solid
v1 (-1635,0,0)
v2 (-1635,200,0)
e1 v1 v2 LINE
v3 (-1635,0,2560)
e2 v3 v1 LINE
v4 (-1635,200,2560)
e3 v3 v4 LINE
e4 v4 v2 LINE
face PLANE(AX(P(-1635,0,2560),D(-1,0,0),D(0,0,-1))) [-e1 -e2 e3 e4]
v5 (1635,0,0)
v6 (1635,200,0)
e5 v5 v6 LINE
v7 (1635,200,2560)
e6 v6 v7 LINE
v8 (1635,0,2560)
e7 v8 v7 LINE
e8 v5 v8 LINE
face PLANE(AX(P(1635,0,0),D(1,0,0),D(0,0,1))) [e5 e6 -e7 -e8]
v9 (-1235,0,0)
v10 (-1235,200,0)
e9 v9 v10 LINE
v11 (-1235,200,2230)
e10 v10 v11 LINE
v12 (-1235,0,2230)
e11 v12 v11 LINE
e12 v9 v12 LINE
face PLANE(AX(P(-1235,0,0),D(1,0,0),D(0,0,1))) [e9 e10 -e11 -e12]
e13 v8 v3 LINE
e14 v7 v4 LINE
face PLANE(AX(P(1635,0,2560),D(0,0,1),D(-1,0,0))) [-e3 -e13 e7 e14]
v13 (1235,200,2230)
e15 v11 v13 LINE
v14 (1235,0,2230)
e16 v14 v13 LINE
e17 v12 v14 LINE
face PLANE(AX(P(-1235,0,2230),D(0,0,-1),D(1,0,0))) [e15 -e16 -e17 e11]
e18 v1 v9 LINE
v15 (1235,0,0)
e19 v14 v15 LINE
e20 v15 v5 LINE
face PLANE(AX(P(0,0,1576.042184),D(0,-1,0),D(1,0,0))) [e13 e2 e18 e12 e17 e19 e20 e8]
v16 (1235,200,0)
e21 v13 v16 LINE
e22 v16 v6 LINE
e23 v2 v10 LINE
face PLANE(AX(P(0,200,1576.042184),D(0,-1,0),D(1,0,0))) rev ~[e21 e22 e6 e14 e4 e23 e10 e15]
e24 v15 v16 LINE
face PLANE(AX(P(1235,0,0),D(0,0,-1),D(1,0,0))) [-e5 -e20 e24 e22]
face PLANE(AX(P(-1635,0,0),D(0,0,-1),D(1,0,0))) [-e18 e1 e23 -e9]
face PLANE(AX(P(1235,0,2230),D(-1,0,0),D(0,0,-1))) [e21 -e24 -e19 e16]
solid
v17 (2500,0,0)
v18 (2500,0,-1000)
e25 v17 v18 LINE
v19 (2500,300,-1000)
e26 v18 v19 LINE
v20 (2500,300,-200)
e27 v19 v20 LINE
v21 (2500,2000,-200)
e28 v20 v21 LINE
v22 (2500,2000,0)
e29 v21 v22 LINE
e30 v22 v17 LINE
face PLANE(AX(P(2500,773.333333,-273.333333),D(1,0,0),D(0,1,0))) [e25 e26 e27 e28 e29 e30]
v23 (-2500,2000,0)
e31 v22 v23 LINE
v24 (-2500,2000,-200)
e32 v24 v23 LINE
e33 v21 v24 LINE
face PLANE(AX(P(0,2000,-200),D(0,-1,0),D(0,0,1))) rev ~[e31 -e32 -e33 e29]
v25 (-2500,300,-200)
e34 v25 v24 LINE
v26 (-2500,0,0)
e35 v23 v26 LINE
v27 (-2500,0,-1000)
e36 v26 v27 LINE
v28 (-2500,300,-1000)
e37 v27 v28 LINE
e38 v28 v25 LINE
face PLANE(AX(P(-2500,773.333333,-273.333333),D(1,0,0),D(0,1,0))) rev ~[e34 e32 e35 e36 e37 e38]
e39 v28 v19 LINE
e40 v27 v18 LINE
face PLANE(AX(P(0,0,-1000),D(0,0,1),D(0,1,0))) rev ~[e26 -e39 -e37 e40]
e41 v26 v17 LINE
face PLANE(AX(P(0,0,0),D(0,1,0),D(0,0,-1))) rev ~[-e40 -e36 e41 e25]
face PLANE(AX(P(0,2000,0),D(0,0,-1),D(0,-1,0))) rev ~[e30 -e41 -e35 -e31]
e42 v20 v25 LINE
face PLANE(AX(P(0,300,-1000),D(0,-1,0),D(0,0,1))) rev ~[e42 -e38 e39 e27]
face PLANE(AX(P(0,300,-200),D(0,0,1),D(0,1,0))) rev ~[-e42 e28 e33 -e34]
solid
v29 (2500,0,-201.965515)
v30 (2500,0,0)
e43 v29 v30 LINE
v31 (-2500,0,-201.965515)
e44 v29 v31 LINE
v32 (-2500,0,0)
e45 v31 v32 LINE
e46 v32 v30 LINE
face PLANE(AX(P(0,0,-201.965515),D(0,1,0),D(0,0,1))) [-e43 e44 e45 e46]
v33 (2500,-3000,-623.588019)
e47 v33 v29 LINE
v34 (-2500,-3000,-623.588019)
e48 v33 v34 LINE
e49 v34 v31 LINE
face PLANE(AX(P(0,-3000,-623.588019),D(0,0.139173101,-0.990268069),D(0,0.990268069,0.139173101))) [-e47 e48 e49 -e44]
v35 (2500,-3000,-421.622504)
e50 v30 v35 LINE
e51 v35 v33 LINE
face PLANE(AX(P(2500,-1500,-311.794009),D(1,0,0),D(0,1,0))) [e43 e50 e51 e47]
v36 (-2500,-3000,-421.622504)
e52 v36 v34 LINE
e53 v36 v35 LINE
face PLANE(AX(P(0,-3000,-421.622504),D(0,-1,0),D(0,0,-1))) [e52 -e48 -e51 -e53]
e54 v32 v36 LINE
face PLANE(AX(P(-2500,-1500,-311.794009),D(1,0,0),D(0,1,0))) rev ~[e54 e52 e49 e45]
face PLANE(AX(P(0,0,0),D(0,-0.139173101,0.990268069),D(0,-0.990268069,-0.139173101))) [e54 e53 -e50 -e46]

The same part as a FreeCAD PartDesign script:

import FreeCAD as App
import Part
import Sketcher
Q = App.Units.Quantity


def add_polygon(sketch, points):
    """Adds a closed chain of lines whose ends are joined by coincident constraints."""
    first, n = sketch.GeometryCount, len(points)
    for a, b in zip(points, points[1:] + points[:1]):
        sketch.addGeometry(Part.LineSegment(App.Vector(*a, 0), App.Vector(*b, 0)), False)
    for i in range(n):
        sketch.addConstraint(Sketcher.Constraint("Coincident", first + i, 2, first + (i + 1) % n, 1))

doc = App.newDocument("Part")
body = doc.addObject("PartDesign::Body", "Body")

# Sketch on XZ plane
sketch1 = body.newObject("Sketcher::SketchObject", "Sketch")
sketch1.AttachmentSupport = (doc.getObject("XZ_Plane"), [""])
sketch1.MapMode = "FlatFace"
add_polygon(sketch1, [(-1235, 2230), (1235, 2230), (1235, 0), (1635, 0), (1635, 2560), (-1635, 2560), (-1635, 0), (-1235, 0)])  # lines 0-7
sketch1.addConstraint([
    Sketcher.Constraint("Horizontal", 0),
    Sketcher.Constraint("Vertical", 1),
    Sketcher.Constraint("Horizontal", 2),
    Sketcher.Constraint("Vertical", 3),
    Sketcher.Constraint("Horizontal", 4),
    Sketcher.Constraint("Vertical", 5),
    Sketcher.Constraint("Horizontal", 6),
    Sketcher.Constraint("Vertical", 7),
    Sketcher.Constraint("Symmetric", 2, 2, 5, 2, -1, 1),
    Sketcher.Constraint("Symmetric", 1, 2, 6, 2, -2),
    Sketcher.Constraint("DistanceX", 0, 1, 0, 2, 2470.0),
    Sketcher.Constraint("DistanceX", 2, 1, 2, 2, 400.0),
    Sketcher.Constraint("DistanceY", 1, 2, 1, 1, 2230.0),
    Sketcher.Constraint("DistanceY", 3, 1, 3, 2, 2560.0),
])
pad1 = body.newObject("PartDesign::Pad", "Pad")
pad1.Profile = sketch1
pad1.Length = 200
pad1.Reversed = True
body2 = doc.addObject("PartDesign::Body", "Body001")

# Sketch on YZ plane
sketch2 = body2.newObject("Sketcher::SketchObject", "Sketch001")
sketch2.AttachmentSupport = (doc.getObject("YZ_Plane001"), [""])
sketch2.MapMode = "FlatFace"
add_polygon(sketch2, [(0, -202), (0, 0), (-3000, -422), (-3000, -624)])  # lines 0-3
sketch2.addConstraint([
    Sketcher.Constraint("Vertical", 0),
    Sketcher.Constraint("Vertical", 2),
    Sketcher.Constraint("Coincident", 0, 2, -1, 1),
    Sketcher.Constraint("Parallel", 1, 3),
    Sketcher.Constraint("Angle", 1, Q("-172 deg")),
    Sketcher.Constraint("DistanceX", 1, 2, -1, 1, 3000.0),
    Sketcher.Constraint("DistanceY", 0, 1, 0, 2, 201.965515),
])
pad2 = body2.newObject("PartDesign::Pad", "Pad001")
pad2.Profile = sketch2
pad2.Length = 5000
pad2.Midplane = True
body3 = doc.addObject("PartDesign::Body", "Body002")

# Sketch on YZ plane
sketch3 = body3.newObject("Sketcher::SketchObject", "Sketch002")
sketch3.AttachmentSupport = (doc.getObject("YZ_Plane002"), [""])
sketch3.MapMode = "FlatFace"
add_polygon(sketch3, [(2000, 0), (0, 0), (0, -1000), (300, -1000), (300, -200), (2000, -200)])  # lines 0-5
sketch3.addConstraint([
    Sketcher.Constraint("Horizontal", 0),
    Sketcher.Constraint("Vertical", 1),
    Sketcher.Constraint("Horizontal", 2),
    Sketcher.Constraint("Vertical", 3),
    Sketcher.Constraint("Horizontal", 4),
    Sketcher.Constraint("Vertical", 5),
    Sketcher.Constraint("Coincident", 0, 2, -1, 1),
    Sketcher.Constraint("DistanceX", 0, 2, 0, 1, 2000.0),
    Sketcher.Constraint("DistanceX", 2, 1, 2, 2, 300.0),
    Sketcher.Constraint("DistanceY", 1, 2, 1, 1, 1000.0),
    Sketcher.Constraint("DistanceY", 3, 1, 3, 2, 800.0),
])
pad3 = body3.newObject("PartDesign::Pad", "Pad002")
pad3.Profile = sketch3
pad3.Type = "TwoLengths"
pad3.Length = 2500
pad3.Length2 = 2500
pad3.Reversed = True

doc.recompute()
